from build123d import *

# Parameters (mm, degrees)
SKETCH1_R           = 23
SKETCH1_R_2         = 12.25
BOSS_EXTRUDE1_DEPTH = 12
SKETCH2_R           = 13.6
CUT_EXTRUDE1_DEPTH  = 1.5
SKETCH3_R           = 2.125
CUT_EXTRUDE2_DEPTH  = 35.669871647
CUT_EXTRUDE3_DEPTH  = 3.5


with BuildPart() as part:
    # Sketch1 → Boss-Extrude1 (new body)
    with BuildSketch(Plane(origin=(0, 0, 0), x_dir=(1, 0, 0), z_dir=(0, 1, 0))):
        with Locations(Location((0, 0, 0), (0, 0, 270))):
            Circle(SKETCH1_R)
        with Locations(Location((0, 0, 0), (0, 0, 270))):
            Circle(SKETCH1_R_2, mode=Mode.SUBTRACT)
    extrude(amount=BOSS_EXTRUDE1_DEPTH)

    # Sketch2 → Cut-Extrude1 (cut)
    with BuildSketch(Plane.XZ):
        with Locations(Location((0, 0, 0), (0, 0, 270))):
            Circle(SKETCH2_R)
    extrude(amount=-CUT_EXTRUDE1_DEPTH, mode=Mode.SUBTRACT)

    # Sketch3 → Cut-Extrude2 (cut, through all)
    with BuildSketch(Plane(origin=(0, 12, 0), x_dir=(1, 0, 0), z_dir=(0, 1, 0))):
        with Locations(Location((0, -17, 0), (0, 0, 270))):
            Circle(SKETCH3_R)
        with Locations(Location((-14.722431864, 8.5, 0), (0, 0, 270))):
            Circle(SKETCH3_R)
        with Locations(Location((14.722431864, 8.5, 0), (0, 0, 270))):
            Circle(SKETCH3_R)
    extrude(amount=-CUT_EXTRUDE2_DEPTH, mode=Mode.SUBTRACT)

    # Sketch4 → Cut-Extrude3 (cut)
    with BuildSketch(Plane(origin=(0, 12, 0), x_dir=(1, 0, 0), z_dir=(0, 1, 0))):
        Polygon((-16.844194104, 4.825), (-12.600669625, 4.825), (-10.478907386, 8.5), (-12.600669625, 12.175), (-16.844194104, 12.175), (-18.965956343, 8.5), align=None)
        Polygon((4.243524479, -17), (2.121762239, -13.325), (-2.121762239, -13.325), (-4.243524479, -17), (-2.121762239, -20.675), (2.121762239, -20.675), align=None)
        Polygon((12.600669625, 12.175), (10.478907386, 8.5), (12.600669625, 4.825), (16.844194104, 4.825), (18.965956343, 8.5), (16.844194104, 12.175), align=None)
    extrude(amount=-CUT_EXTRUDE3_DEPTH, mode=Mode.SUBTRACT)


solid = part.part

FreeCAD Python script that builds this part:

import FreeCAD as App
import Part
import Sketcher

V = App.Vector
Q = App.Units.Quantity

doc = App.newDocument("Part")
body = doc.addObject("PartDesign::Body", "Body")

# Sketch on XZ plane
sketch1 = doc.addObject("Sketcher::SketchObject", "Sketch")
body.addObject(sketch1)
sketch1.AttachmentSupport = (doc.XZ_Plane, [""])
sketch1.MapMode = "FlatFace"
sketch1.addGeometry([
    Part.Circle(V(0, 0, 0), V(0, 0, 1), 23),
    Part.Circle(V(0, 0, 0), V(0, 0, 1), 12),
], False)
sketch1.addConstraint([
    Sketcher.Constraint("Coincident", 0, 3, -1, 1),
    Sketcher.Constraint("Coincident", 1, 3, -1, 1),
    Sketcher.Constraint("Diameter", 0, 46.0),
    Sketcher.Constraint("Diameter", 1, 24.5),
])
pad1 = doc.addObject("PartDesign::Pad", "Pad")
body.addObject(pad1)
pad1.Profile = sketch1
pad1.Length = 12
pad1.Reversed = True

# Sketch on XZ plane
sketch2 = doc.addObject("Sketcher::SketchObject", "Sketch001")
body.addObject(sketch2)
sketch2.AttachmentSupport = (doc.XZ_Plane, [""])
sketch2.MapMode = "FlatFace"
sketch2.addGeometry(Part.Circle(V(0, 0, 0), V(0, 0, 1), 14), False)
sketch2.addConstraint([
    Sketcher.Constraint("Coincident", 0, 3, -1, 1),
    Sketcher.Constraint("Diameter", 0, 27.2),
])
pocket1 = doc.addObject("PartDesign::Pocket", "Pocket")
body.addObject(pocket1)
pocket1.Profile = sketch2
pocket1.Length = 1.5

# Sketch on XZ plane
sketch3 = doc.addObject("Sketcher::SketchObject", "Sketch002")
body.addObject(sketch3)
sketch3.AttachmentSupport = (doc.XZ_Plane, [""])
sketch3.MapMode = "FlatFace"
sketch3.AttachmentOffset = App.Placement(V(0, 0, -12), App.Rotation())
sketch3.addGeometry([
    Part.Circle(V(0, 17, 0), V(0, 0, 1), 2.1),
    Part.Circle(V(-14.7, -8.5, 0), V(0, 0, 1), 2.1),
    Part.Circle(V(14.7, -8.5, 0), V(0, 0, 1), 2.1),
], False)
sketch3.addConstraint([
    Sketcher.Constraint("Equal", 0, 1),
    Sketcher.Constraint("Equal", 1, 2),
    Sketcher.Constraint("Symmetric", 1, 3, 2, 3, -2),
    Sketcher.Constraint("PointOnObject", 0, 3, -2),
    Sketcher.Constraint("Diameter", 0, 4.25),
    Sketcher.Constraint("DistanceY", -1, 1, 0, 3, 17.0),
    Sketcher.Constraint("DistanceY", 1, 3, -1, 1, 8.5),
    Sketcher.Constraint("DistanceX", 1, 3, -1, 1, 14.722432),
])
pocket2 = doc.addObject("PartDesign::Pocket", "Pocket001")
body.addObject(pocket2)
pocket2.Profile = sketch3
pocket2.Type = "ThroughAll"
pocket2.Reversed = True

# Sketch on XZ plane
sketch4 = doc.addObject("Sketcher::SketchObject", "Sketch003")
body.addObject(sketch4)
sketch4.AttachmentSupport = (doc.XZ_Plane, [""])
sketch4.MapMode = "FlatFace"
sketch4.AttachmentOffset = App.Placement(V(0, 0, -12), App.Rotation())
sketch4.addGeometry([
    Part.LineSegment(V(-16.8, -4.8, 0), V(-12.6, -4.8, 0)),  # 0
    Part.LineSegment(V(-12.6, -4.8, 0), V(-10.5, -8.5, 0)),  # 1
    Part.LineSegment(V(-10.5, -8.5, 0), V(-12.6, -12.2, 0)),  # 2
    Part.LineSegment(V(-12.6, -12.2, 0), V(-16.8, -12.2, 0)),  # 3
    Part.LineSegment(V(-16.8, -12.2, 0), V(-19, -8.5, 0)),  # 4
    Part.LineSegment(V(-19, -8.5, 0), V(-16.8, -4.8, 0)),  # 5
    Part.LineSegment(V(4.2, 17, 0), V(2.1, 13.3, 0)),  # 6
    Part.LineSegment(V(2.1, 13.3, 0), V(-2.1, 13.3, 0)),  # 7
    Part.LineSegment(V(-2.1, 13.3, 0), V(-4.2, 17, 0)),  # 8
    Part.LineSegment(V(-4.2, 17, 0), V(-2.1, 20.7, 0)),  # 9
    Part.LineSegment(V(-2.1, 20.7, 0), V(2.1, 20.7, 0)),  # 10
    Part.LineSegment(V(2.1, 20.7, 0), V(4.2, 17, 0)),  # 11
    Part.LineSegment(V(12.6, -12.2, 0), V(10.5, -8.5, 0)),  # 12
    Part.LineSegment(V(10.5, -8.5, 0), V(12.6, -4.8, 0)),  # 13
    Part.LineSegment(V(12.6, -4.8, 0), V(16.8, -4.8, 0)),  # 14
    Part.LineSegment(V(16.8, -4.8, 0), V(19, -8.5, 0)),  # 15
    Part.LineSegment(V(19, -8.5, 0), V(16.8, -12.2, 0)),  # 16
    Part.LineSegment(V(16.8, -12.2, 0), V(12.6, -12.2, 0)),  # 17
], False)
sketch4.addConstraint([
    Sketcher.Constraint("Coincident", 0, 2, 1, 1),
    Sketcher.Constraint("Coincident", 1, 2, 2, 1),
    Sketcher.Constraint("Coincident", 2, 2, 3, 1),
    Sketcher.Constraint("Coincident", 3, 2, 4, 1),
    Sketcher.Constraint("Coincident", 4, 2, 5, 1),
    Sketcher.Constraint("Coincident", 5, 2, 0, 1),
    Sketcher.Constraint("Coincident", 6, 2, 7, 1),
    Sketcher.Constraint("Coincident", 7, 2, 8, 1),
    Sketcher.Constraint("Coincident", 8, 2, 9, 1),
    Sketcher.Constraint("Coincident", 9, 2, 10, 1),
    Sketcher.Constraint("Coincident", 10, 2, 11, 1),
    Sketcher.Constraint("Coincident", 11, 2, 6, 1),
    Sketcher.Constraint("Coincident", 12, 2, 13, 1),
    Sketcher.Constraint("Coincident", 13, 2, 14, 1),
    Sketcher.Constraint("Coincident", 14, 2, 15, 1),
    Sketcher.Constraint("Coincident", 15, 2, 16, 1),
    Sketcher.Constraint("Coincident", 16, 2, 17, 1),
    Sketcher.Constraint("Coincident", 17, 2, 12, 1),
    Sketcher.Constraint("Horizontal", 0),
    Sketcher.Constraint("Horizontal", 3),
    Sketcher.Constraint("Horizontal", 7),
    Sketcher.Constraint("Horizontal", 10),
    Sketcher.Constraint("Horizontal", 14),
    Sketcher.Constraint("Horizontal", 17),
    Sketcher.Constraint("Symmetric", 8, 2, 11, 2, -2),
    Sketcher.Constraint("Symmetric", 1, 2, 12, 2, -2),
    Sketcher.Constraint("Symmetric", 0, 2, 13, 2, -2),
    Sketcher.Constraint("Symmetric", 4, 2, 15, 2, -2),
    Sketcher.Constraint("Symmetric", 3, 2, 16, 2, -2),
    Sketcher.Constraint("Parallel", 1, 4),
    Sketcher.Constraint("Parallel", 2, 5),
    Sketcher.Constraint("Parallel", 5, 6),
    Sketcher.Constraint("Parallel", 4, 8),
    Sketcher.Constraint("Parallel", 6, 9),
    Sketcher.Constraint("Parallel", 8, 11),
    Sketcher.Constraint("Parallel", 11, 12),
    Sketcher.Constraint("Parallel", 9, 13),
    Sketcher.Constraint("Parallel", 12, 15),
    Sketcher.Constraint("Horizontal", 1, 2, 4, 2),
    Sketcher.Constraint("Vertical", 0, 2, 2, 2),
    Sketcher.Constraint("Vertical", 7, 2, 9, 2),
    Sketcher.Constraint("Equal", 3, 7),
    Sketcher.Constraint("Equal", 5, 6),
    Sketcher.Constraint("Angle", 1, Q("-60 deg")),
    Sketcher.Constraint("DistanceY", -1, 1, 8, 2, 17.0),
    Sketcher.Constraint("DistanceY", 1, 2, -1, 1, 8.5),
    Sketcher.Constraint("DistanceY", 2, 2, 0, 2, 7.35),
    Sketcher.Constraint("DistanceX", 1, 2, 16, 2, 27.323101),
    Sketcher.Constraint("DistanceX", 0, 1, 0, 2, 4.243524),
])
pocket3 = doc.addObject("PartDesign::Pocket", "Pocket002")
body.addObject(pocket3)
pocket3.Profile = sketch4
pocket3.Length = 3.5
pocket3.Reversed = True

doc.recompute()
